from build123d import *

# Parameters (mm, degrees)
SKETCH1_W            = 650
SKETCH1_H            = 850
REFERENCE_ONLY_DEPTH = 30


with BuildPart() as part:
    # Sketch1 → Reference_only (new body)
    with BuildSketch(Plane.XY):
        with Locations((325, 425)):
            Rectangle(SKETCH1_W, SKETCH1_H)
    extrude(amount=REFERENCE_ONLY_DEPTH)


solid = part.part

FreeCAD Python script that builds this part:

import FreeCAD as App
import Part
import Sketcher
from FreeCAD import Vector
Q = App.Units.Quantity

doc = App.newDocument("Part")
params = doc.addObject("Spreadsheet::Sheet", "Params")
for row, (alias, value) in enumerate([
    ("sketch1_width", "650 mm"),
    ("sketch1_height", "850 mm"),
    ("pad1_length", "30 mm"),
], start=1):
    params.set(f"A{row}", alias)
    params.set(f"B{row}", "=" + value)
    params.setAlias(f"B{row}", alias)

body = doc.addObject("PartDesign::Body", "Body")

# Sketch on XY plane
sketch1 = body.newObject("Sketcher::SketchObject", "Sketch")
sketch1.AttachmentSupport = (doc.getObject("XY_Plane"), [""])
sketch1.MapMode = "FlatFace"
sketch1.addGeometry([
    Part.LineSegment(Vector(0, 850, 0), Vector(0, 0, 0)),
    Part.LineSegment(Vector(0, 0, 0), Vector(650, 0, 0)),
    Part.LineSegment(Vector(650, 0, 0), Vector(650, 850, 0)),
    Part.LineSegment(Vector(650, 850, 0), Vector(0, 850, 0)),
], False)
sketch1.addConstraint([
    Sketcher.Constraint("Coincident", 0, 2, 1, 1),
    Sketcher.Constraint("Coincident", 1, 2, 2, 1),
    Sketcher.Constraint("Coincident", 2, 2, 3, 1),
    Sketcher.Constraint("Coincident", 3, 2, 0, 1),
    Sketcher.Constraint("Vertical", 0),
    Sketcher.Constraint("Horizontal", 1),
    Sketcher.Constraint("Vertical", 2),
    Sketcher.Constraint("Horizontal", 3),
    Sketcher.Constraint("Coincident", 0, 2, -1, 1),
    Sketcher.Constraint("DistanceX", 1, 1, 1, 2, Q("650 mm")),
    Sketcher.Constraint("DistanceY", 0, 2, 0, 1, Q("850 mm")),
])
sketch1.setExpression("Constraints[9]", "Params.sketch1_width")
sketch1.setExpression("Constraints[10]", "Params.sketch1_height")
pad1 = body.newObject("PartDesign::Pad", "Pad")
pad1.Profile = sketch1
pad1.setExpression("Length", "Params.pad1_length")

doc.recompute()
